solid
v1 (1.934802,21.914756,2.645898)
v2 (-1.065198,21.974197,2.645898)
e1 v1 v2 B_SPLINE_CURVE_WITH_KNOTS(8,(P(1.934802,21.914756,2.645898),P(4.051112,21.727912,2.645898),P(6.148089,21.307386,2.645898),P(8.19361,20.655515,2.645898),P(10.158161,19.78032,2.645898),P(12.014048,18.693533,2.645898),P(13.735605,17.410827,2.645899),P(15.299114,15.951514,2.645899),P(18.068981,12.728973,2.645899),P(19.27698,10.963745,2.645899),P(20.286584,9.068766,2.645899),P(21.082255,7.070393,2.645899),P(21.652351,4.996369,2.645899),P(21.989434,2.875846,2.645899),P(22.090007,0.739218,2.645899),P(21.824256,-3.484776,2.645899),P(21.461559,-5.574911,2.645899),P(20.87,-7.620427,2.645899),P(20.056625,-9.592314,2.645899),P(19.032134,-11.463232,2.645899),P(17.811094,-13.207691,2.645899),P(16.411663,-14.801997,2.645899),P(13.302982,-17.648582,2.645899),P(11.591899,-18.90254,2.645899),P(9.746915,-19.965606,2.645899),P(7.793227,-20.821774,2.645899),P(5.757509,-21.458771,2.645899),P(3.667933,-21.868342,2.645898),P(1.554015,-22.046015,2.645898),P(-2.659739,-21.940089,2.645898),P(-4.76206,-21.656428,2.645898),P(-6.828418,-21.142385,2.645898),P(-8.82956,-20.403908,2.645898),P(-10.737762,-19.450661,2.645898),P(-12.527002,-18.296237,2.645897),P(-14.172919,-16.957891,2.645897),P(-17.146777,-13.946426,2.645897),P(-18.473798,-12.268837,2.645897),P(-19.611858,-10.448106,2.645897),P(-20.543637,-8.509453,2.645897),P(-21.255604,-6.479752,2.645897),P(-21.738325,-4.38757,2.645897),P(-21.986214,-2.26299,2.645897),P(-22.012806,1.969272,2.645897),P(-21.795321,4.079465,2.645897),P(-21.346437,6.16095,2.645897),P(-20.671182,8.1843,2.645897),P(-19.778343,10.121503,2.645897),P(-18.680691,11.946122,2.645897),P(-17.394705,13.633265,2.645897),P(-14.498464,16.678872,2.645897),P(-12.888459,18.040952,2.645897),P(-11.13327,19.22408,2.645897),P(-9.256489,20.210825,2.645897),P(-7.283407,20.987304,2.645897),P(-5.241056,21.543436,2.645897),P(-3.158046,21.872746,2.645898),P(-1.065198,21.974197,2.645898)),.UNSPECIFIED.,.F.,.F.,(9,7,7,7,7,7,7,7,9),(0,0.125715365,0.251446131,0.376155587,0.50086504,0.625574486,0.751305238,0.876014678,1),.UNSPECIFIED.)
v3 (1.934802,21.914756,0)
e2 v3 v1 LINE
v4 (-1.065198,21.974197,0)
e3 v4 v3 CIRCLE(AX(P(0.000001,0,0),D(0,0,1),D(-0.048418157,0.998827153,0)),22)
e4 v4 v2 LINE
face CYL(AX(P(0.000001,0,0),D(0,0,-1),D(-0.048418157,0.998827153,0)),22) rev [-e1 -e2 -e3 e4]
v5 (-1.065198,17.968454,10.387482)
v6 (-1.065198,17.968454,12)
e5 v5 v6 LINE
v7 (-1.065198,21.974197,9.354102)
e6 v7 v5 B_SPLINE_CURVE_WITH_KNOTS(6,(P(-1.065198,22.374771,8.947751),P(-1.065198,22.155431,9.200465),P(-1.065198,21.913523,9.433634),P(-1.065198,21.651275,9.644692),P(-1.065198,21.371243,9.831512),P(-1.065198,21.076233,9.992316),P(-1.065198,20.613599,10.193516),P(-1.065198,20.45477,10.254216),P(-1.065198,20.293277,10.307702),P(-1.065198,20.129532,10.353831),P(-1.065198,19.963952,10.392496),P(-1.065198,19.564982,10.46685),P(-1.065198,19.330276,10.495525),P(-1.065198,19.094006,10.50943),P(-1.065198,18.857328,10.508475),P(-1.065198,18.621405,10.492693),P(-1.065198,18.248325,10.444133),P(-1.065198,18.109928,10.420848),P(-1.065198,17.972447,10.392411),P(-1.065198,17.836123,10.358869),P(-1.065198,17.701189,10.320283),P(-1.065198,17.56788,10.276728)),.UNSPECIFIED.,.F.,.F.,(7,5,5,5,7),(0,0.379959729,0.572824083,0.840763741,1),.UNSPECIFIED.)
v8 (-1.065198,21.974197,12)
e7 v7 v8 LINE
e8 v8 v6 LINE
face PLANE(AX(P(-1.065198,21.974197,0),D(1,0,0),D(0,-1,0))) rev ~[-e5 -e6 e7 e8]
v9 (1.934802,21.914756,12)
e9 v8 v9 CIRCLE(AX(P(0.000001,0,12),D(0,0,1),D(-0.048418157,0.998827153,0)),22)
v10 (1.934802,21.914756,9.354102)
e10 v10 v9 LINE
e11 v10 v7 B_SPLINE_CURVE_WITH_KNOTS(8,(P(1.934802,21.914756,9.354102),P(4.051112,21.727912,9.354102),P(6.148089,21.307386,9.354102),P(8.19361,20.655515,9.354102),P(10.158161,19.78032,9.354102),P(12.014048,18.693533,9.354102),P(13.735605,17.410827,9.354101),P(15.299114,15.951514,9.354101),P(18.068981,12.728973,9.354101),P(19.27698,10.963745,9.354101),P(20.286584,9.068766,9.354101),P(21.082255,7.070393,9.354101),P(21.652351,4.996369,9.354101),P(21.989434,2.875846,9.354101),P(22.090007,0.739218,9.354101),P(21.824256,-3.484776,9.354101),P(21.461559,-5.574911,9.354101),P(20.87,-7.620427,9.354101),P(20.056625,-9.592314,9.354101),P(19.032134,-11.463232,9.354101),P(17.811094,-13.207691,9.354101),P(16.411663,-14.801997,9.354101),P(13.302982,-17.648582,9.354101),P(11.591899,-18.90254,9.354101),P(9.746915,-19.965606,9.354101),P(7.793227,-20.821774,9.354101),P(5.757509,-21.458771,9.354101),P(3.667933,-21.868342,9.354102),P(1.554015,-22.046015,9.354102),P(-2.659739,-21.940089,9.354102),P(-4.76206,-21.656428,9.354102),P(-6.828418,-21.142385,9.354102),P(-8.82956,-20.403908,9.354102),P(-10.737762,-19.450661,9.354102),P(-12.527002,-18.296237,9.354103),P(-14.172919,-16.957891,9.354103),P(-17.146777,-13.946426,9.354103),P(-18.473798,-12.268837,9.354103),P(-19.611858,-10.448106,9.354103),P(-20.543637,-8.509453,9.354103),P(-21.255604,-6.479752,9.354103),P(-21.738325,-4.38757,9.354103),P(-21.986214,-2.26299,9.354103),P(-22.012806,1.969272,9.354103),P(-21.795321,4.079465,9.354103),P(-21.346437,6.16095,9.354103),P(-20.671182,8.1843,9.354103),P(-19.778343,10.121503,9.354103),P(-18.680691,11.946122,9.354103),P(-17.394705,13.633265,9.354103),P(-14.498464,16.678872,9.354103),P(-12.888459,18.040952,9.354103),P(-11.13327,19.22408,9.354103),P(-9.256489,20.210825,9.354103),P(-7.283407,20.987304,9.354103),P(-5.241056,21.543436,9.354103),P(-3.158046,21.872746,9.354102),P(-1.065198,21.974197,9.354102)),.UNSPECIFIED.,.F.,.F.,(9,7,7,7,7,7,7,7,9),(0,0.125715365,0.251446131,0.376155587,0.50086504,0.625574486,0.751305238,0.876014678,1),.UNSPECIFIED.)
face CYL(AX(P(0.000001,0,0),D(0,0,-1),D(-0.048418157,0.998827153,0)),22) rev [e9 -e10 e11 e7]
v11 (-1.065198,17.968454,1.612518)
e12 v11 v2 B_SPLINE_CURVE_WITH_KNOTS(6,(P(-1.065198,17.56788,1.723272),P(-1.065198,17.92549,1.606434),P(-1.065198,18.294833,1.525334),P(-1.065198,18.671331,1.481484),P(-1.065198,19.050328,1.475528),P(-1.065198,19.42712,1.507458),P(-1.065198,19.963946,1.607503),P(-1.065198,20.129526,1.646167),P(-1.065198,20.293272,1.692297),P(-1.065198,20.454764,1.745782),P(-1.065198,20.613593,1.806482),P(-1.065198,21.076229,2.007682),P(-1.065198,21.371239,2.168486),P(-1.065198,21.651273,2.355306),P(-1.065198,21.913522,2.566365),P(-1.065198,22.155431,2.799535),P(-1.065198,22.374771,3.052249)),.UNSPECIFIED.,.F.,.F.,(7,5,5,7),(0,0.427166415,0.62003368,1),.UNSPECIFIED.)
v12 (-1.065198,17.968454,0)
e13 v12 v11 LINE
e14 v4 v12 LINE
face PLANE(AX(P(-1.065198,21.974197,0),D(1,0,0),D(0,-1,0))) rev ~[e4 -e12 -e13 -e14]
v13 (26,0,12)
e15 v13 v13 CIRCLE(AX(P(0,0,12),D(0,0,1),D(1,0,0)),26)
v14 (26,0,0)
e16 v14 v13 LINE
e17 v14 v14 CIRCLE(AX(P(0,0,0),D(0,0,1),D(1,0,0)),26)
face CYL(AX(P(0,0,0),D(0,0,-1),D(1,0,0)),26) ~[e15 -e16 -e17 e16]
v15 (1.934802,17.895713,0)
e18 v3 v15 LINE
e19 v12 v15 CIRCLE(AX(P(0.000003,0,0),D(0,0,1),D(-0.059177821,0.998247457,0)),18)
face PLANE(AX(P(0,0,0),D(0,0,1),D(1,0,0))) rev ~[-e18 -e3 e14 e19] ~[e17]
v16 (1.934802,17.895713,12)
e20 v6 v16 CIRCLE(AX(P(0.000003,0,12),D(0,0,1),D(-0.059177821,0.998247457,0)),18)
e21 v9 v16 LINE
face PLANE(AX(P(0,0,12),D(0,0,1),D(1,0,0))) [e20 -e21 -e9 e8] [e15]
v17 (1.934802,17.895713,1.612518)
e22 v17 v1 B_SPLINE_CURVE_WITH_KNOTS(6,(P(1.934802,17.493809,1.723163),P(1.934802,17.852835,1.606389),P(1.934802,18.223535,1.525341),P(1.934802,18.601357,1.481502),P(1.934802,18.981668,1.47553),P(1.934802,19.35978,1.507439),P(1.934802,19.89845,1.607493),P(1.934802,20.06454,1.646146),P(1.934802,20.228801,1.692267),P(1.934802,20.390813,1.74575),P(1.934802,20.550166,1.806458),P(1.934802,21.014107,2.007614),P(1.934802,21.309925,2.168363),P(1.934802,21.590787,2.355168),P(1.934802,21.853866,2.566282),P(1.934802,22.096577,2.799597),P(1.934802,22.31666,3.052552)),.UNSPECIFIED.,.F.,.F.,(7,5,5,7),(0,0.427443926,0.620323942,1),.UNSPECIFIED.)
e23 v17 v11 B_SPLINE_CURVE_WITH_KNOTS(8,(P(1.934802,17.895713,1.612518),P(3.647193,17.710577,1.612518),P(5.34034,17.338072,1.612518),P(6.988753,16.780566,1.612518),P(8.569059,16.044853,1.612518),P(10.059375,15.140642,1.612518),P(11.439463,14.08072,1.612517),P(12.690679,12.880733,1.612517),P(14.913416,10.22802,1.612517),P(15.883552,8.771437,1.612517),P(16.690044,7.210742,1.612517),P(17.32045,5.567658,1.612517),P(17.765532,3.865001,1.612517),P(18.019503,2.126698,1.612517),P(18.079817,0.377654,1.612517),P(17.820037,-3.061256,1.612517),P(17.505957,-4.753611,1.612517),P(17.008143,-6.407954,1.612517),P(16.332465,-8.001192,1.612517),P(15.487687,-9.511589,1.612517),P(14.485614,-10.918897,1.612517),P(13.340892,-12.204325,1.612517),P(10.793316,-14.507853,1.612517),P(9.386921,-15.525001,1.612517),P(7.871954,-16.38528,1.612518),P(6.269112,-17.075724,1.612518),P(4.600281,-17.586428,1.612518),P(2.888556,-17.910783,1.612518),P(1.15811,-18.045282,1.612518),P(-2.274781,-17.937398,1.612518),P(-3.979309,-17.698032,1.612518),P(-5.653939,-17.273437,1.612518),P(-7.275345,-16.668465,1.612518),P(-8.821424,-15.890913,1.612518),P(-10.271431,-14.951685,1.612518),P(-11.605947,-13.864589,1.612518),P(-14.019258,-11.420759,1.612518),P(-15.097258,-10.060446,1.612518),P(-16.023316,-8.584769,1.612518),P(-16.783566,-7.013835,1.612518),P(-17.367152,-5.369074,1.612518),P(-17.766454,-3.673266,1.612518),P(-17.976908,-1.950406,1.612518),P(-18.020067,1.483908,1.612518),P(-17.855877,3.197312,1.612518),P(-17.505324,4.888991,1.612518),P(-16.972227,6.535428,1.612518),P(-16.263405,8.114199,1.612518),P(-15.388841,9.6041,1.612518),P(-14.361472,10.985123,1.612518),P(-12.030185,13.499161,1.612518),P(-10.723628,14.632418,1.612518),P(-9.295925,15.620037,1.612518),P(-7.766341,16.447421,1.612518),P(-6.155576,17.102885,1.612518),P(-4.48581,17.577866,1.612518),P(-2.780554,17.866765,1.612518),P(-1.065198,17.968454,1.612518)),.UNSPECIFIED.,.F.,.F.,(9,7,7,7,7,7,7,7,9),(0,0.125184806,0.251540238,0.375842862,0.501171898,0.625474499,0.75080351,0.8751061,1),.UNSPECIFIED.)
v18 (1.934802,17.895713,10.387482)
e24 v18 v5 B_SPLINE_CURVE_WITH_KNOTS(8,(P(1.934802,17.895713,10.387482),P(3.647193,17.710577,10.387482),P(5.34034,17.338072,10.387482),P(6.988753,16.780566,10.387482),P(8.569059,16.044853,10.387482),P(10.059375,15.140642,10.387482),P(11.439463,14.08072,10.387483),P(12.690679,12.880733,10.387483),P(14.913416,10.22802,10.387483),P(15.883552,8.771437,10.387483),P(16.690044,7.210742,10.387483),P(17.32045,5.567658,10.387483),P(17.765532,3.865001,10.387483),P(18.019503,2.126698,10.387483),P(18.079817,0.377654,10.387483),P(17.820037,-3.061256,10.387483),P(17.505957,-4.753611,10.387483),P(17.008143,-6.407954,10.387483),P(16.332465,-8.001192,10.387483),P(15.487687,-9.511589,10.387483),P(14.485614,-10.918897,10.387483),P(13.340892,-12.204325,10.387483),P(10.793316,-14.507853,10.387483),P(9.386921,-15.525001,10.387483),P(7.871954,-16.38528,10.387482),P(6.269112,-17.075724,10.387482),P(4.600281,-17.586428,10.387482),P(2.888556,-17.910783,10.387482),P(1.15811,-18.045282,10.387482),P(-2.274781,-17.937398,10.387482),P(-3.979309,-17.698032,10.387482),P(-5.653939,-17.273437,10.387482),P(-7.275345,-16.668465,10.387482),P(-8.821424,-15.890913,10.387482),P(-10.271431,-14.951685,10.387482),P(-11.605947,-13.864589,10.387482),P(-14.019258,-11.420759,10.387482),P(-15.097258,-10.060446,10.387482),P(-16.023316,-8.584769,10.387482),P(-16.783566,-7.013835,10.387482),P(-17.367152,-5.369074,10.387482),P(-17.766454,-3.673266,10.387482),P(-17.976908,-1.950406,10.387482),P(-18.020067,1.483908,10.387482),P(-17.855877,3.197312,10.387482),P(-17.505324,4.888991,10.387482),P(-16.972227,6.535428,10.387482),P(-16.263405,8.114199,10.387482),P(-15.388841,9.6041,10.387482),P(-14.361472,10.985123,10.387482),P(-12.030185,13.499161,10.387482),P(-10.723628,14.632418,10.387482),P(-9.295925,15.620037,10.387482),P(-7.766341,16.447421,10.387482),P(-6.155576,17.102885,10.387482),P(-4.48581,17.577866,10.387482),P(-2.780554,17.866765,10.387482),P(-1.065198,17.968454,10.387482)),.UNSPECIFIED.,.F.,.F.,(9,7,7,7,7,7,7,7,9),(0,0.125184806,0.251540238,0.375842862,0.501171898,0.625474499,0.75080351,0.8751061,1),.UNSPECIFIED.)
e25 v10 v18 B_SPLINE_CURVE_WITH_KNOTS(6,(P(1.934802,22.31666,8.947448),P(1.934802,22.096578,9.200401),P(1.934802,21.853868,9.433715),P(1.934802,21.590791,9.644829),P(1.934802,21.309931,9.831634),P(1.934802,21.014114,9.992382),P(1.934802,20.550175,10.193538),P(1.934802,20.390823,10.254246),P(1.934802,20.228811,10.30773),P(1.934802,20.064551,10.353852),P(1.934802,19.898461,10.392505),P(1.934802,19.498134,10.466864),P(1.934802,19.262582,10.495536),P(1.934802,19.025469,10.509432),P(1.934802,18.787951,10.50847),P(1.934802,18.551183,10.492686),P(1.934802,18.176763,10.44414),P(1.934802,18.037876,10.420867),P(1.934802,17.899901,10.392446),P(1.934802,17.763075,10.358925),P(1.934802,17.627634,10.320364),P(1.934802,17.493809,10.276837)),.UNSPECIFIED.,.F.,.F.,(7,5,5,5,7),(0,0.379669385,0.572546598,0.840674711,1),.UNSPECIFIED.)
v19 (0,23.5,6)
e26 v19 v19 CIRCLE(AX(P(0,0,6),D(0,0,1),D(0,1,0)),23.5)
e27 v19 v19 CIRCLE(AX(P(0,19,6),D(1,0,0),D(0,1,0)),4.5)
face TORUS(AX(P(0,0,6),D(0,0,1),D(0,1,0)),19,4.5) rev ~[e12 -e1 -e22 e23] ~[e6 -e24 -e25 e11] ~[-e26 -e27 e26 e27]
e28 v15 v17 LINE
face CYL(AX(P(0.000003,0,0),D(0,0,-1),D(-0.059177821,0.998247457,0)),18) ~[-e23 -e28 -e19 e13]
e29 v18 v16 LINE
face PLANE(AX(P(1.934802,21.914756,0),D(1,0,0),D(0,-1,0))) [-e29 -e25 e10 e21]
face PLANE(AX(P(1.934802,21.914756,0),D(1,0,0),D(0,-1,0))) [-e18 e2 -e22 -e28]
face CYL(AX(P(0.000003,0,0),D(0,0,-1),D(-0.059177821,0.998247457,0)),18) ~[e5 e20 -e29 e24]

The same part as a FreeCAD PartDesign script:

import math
import FreeCAD as App
import Part
import Sketcher

V = App.Vector
Q = App.Units.Quantity

doc = App.newDocument("Part")
body = doc.addObject("PartDesign::Body", "Body")

sketch1 = body.newObject("Sketcher::SketchObject", "Sketch")
sketch1.AttachmentSupport = (doc.getObject("XY_Plane"), [""])
sketch1.MapMode = "FlatFace"
sketch1.addGeometry(Part.Circle(V(0, 0, 0), V(0, 0, 1), 26), False)
sketch1.addConstraint(Sketcher.Constraint("Coincident", 0, 3, -1, 1))
sketch1.addConstraint(Sketcher.Constraint("Diameter", 0, Q("52 mm")))
pad1 = body.newObject("PartDesign::Pad", "Pad")
pad1.Profile = sketch1
pad1.Length = 12

sketch2 = body.newObject("Sketcher::SketchObject", "Sketch001")
sketch2.AttachmentSupport = (doc.getObject("XY_Plane"), [""])
sketch2.MapMode = "FlatFace"
sketch2.addGeometry(Part.ArcOfCircle(Part.Circle(V(0, 0, 0), V(0, 0, 1), 22), math.radians(93), math.radians(445)), False)
sketch2.addGeometry(Part.LineSegment(V(1.9, 21.9, 0), V(1.9, 17.9, 0)), False)
sketch2.addGeometry(Part.ArcOfCircle(Part.Circle(V(0, 0, 0), V(0, 0, 1), 18), math.radians(93), math.radians(444)), False)
sketch2.addGeometry(Part.LineSegment(V(-1.1, 18, 0), V(-1.1, 22, 0)), False)
sketch2.addConstraint(Sketcher.Constraint("Coincident", 0, 2, 1, 1))
sketch2.addConstraint(Sketcher.Constraint("Coincident", 1, 2, 2, 2))
sketch2.addConstraint(Sketcher.Constraint("Coincident", 2, 1, 3, 1))
sketch2.addConstraint(Sketcher.Constraint("Coincident", 3, 2, 0, 1))
sketch2.addConstraint(Sketcher.Constraint("Vertical", 1))
sketch2.addConstraint(Sketcher.Constraint("Vertical", 3))
sketch2.addConstraint(Sketcher.Constraint("Coincident", 0, 3, -1, 1))
sketch2.addConstraint(Sketcher.Constraint("Coincident", 2, 3, -1, 1))
sketch2.addConstraint(Sketcher.Constraint("Radius", 0, Q("22 mm")))
sketch2.addConstraint(Sketcher.Constraint("Radius", 2, Q("18 mm")))
sketch2.addConstraint(Sketcher.Constraint("DistanceX", 2, 1, 1, 2, Q("3 mm")))
sketch2.addConstraint(Sketcher.Constraint("DistanceX", -1, 1, 0, 2, Q("1.934802 mm")))
pocket1 = body.newObject("PartDesign::Pocket", "Pocket")
pocket1.Profile = sketch2
pocket1.Length = 12
pocket1.Reversed = True

sketch3 = body.newObject("Sketcher::SketchObject", "Sketch002")
sketch3.AttachmentSupport = (doc.getObject("YZ_Plane"), [""])
sketch3.MapMode = "FlatFace"
sketch3.addGeometry(Part.Circle(V(19, 6, 0), V(0, 0, 1), 4.5), False)
sketch3.addConstraint(Sketcher.Constraint("Diameter", 0, Q("9 mm")))
sketch3.addConstraint(Sketcher.Constraint("DistanceX", -1, 1, 0, 3, Q("19 mm")))
sketch3.addConstraint(Sketcher.Constraint("DistanceY", -1, 1, 0, 3, Q("6 mm")))
groove = body.newObject("PartDesign::Groove", "Groove")
groove.Profile = sketch3
groove.ReferenceAxis = (sketch3, ["V_Axis"])
groove.Angle = 360

doc.recompute()
